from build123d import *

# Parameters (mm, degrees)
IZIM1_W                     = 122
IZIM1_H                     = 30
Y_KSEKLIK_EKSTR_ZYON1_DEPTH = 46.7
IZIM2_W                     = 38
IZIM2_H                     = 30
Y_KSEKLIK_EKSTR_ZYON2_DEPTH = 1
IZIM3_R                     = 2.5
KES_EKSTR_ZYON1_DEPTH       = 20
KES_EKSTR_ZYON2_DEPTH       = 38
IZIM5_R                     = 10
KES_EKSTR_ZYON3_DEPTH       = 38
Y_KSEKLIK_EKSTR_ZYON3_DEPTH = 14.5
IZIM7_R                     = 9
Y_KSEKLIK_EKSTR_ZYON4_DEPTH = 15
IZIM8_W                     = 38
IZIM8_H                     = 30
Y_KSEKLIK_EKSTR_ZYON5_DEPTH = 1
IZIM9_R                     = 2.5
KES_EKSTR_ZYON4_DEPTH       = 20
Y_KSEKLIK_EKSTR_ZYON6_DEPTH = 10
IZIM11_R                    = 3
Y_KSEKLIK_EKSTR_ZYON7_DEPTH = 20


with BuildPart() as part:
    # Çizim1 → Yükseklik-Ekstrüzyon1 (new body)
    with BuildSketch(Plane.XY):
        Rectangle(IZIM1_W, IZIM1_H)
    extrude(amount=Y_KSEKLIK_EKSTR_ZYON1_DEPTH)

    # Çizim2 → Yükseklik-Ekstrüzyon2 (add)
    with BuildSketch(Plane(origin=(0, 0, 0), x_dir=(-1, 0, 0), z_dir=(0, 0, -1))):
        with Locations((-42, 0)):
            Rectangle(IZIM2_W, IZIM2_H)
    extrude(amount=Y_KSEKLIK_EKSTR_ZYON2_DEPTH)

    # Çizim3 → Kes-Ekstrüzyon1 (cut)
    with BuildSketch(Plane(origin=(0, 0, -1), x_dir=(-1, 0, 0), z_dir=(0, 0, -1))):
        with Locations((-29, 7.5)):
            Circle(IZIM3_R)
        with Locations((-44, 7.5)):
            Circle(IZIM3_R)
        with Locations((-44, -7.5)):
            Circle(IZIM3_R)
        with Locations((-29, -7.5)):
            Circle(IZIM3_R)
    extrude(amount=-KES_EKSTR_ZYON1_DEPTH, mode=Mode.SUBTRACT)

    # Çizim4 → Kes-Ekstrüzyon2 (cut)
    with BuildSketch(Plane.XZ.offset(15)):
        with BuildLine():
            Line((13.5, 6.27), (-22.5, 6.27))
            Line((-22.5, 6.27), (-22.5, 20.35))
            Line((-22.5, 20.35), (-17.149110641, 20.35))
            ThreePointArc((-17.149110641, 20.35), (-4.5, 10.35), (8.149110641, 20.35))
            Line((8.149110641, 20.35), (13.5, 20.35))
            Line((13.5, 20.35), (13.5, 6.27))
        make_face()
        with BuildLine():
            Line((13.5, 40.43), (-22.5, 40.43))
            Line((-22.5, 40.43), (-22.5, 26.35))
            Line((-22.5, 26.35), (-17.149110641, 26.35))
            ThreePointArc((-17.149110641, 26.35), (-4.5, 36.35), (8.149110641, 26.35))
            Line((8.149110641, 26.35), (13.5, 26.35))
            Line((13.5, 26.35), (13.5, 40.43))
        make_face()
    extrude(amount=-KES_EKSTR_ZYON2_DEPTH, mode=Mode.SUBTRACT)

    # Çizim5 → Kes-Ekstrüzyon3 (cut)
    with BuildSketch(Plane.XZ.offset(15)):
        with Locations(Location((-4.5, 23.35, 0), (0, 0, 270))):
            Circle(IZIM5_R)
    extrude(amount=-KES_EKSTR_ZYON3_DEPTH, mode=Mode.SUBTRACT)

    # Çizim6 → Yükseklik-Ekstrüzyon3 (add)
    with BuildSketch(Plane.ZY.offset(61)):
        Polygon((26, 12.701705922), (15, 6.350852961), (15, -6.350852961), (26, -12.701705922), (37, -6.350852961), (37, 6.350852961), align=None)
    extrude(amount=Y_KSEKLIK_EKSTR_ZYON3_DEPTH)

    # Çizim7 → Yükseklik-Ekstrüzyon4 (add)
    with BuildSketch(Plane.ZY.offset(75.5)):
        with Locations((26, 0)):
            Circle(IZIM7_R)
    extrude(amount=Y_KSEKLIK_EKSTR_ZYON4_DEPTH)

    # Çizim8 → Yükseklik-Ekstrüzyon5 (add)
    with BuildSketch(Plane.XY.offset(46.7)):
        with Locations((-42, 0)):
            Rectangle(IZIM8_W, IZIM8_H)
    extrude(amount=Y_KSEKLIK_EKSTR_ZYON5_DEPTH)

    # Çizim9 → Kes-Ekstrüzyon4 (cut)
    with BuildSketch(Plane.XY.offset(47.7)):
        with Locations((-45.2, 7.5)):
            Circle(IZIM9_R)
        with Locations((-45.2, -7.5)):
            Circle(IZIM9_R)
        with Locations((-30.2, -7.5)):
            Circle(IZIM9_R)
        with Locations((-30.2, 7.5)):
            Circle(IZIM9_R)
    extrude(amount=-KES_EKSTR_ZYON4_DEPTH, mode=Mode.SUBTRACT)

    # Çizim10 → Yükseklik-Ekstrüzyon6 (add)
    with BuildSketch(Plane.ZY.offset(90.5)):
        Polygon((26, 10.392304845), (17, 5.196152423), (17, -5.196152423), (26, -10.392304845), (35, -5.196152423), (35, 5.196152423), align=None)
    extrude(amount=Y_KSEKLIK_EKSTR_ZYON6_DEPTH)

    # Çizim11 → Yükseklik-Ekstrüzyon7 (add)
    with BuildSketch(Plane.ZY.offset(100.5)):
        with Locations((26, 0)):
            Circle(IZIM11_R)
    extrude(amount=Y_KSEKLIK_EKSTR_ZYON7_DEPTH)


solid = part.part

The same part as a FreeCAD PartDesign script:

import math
import FreeCAD as App
import Part
import Sketcher
Q = App.Units.Quantity

doc = App.newDocument("Part")
body = doc.addObject("PartDesign::Body", "Body")

# Sketch on XY plane
sketch1 = body.newObject("Sketcher::SketchObject", "Sketch")
sketch1.AttachmentSupport = (doc.getObject("XY_Plane"), [""])
sketch1.MapMode = "FlatFace"
sketch1.addGeometry([
    Part.LineSegment(App.Vector(-61, 15, 0), App.Vector(-61, -15, 0)),
    Part.LineSegment(App.Vector(-61, -15, 0), App.Vector(61, -15, 0)),
    Part.LineSegment(App.Vector(61, -15, 0), App.Vector(61, 15, 0)),
    Part.LineSegment(App.Vector(61, 15, 0), App.Vector(-61, 15, 0)),
], False)
sketch1.addConstraint([
    Sketcher.Constraint("Coincident", 0, 2, 1, 1),
    Sketcher.Constraint("Coincident", 1, 2, 2, 1),
    Sketcher.Constraint("Coincident", 2, 2, 3, 1),
    Sketcher.Constraint("Coincident", 3, 2, 0, 1),
    Sketcher.Constraint("Vertical", 0),
    Sketcher.Constraint("Horizontal", 1),
    Sketcher.Constraint("Vertical", 2),
    Sketcher.Constraint("Horizontal", 3),
    Sketcher.Constraint("Symmetric", 0, 2, 2, 2, -1, 1),
    Sketcher.Constraint("DistanceX", 1, 1, 1, 2, Q("122 mm")),
    Sketcher.Constraint("DistanceY", 0, 2, 0, 1, Q("30 mm")),
])
pad1 = body.newObject("PartDesign::Pad", "Pad")
pad1.Profile = sketch1
pad1.Length = 46.7

# Sketch on XY plane
sketch2 = body.newObject("Sketcher::SketchObject", "Sketch001")
sketch2.AttachmentSupport = (doc.getObject("XY_Plane"), [""])
sketch2.MapMode = "FlatFace"
sketch2.addGeometry([
    Part.LineSegment(App.Vector(61, 15, 0), App.Vector(61, -15, 0)),
    Part.LineSegment(App.Vector(61, -15, 0), App.Vector(23, -15, 0)),
    Part.LineSegment(App.Vector(23, -15, 0), App.Vector(23, 15, 0)),
    Part.LineSegment(App.Vector(23, 15, 0), App.Vector(61, 15, 0)),
], False)
sketch2.addConstraint([
    Sketcher.Constraint("Coincident", 0, 2, 1, 1),
    Sketcher.Constraint("Coincident", 1, 2, 2, 1),
    Sketcher.Constraint("Coincident", 2, 2, 3, 1),
    Sketcher.Constraint("Coincident", 3, 2, 0, 1),
    Sketcher.Constraint("Vertical", 0),
    Sketcher.Constraint("Horizontal", 1),
    Sketcher.Constraint("Vertical", 2),
    Sketcher.Constraint("Horizontal", 3),
    Sketcher.Constraint("DistanceX", 1, 2, 1, 1, Q("38 mm")),
    Sketcher.Constraint("DistanceY", 0, 2, 0, 1, Q("30 mm")),
    Sketcher.Constraint("DistanceX", -1, 1, 0, 2, Q("61 mm")),
    Sketcher.Constraint("DistanceY", 0, 2, -1, 1, Q("15 mm")),
])
pad2 = body.newObject("PartDesign::Pad", "Pad001")
pad2.Profile = sketch2
pad2.Length = 1
pad2.Reversed = True

# Sketch on XY plane
sketch3 = body.newObject("Sketcher::SketchObject", "Sketch002")
sketch3.AttachmentSupport = (doc.getObject("XY_Plane"), [""])
sketch3.MapMode = "FlatFace"
sketch3.AttachmentOffset = App.Placement(App.Vector(0, 0, -1), App.Rotation())
sketch3.addGeometry([
    Part.Circle(App.Vector(29, 7.5, 0), App.Vector(0, 0, 1), 2.5),
    Part.Circle(App.Vector(44, 7.5, 0), App.Vector(0, 0, 1), 2.5),
    Part.Circle(App.Vector(44, -7.5, 0), App.Vector(0, 0, 1), 2.5),
    Part.Circle(App.Vector(29, -7.5, 0), App.Vector(0, 0, 1), 2.5),
], False)
sketch3.addConstraint([
    Sketcher.Constraint("Equal", 0, 1),
    Sketcher.Constraint("Equal", 1, 2),
    Sketcher.Constraint("Equal", 2, 3),
    Sketcher.Constraint("Symmetric", 1, 3, 2, 3, -1),
    Sketcher.Constraint("Symmetric", 0, 3, 3, 3, -1),
    Sketcher.Constraint("Horizontal", 0, 3, 1, 3),
    Sketcher.Constraint("Diameter", 0, Q("5 mm")),
    Sketcher.Constraint("DistanceX", -1, 1, 0, 3, Q("29 mm")),
    Sketcher.Constraint("DistanceX", -1, 1, 1, 3, Q("44 mm")),
    Sketcher.Constraint("DistanceY", 2, 3, 1, 3, Q("15 mm")),
])
pocket1 = body.newObject("PartDesign::Pocket", "Pocket")
pocket1.Profile = sketch3
pocket1.Length = 20
pocket1.Reversed = True

# Sketch on XZ plane
sketch4 = body.newObject("Sketcher::SketchObject", "Sketch003")
sketch4.AttachmentSupport = (doc.getObject("XZ_Plane"), [""])
sketch4.MapMode = "FlatFace"
sketch4.AttachmentOffset = App.Placement(App.Vector(0, 0, 15), App.Rotation())
sketch4.addGeometry([
    Part.LineSegment(App.Vector(-22.5, 6.27, 0), App.Vector(13.5, 6.27, 0)),  # 0
    Part.LineSegment(App.Vector(13.5, 6.27, 0), App.Vector(13.5, 20.35, 0)),  # 1
    Part.LineSegment(App.Vector(13.5, 20.35, 0), App.Vector(8.149111, 20.35, 0)),  # 2
    Part.ArcOfCircle(Part.Circle(App.Vector(-4.5, 23.35, 0), App.Vector(0, 0, 1), 13), math.radians(-166.657636), math.radians(-13.342364)),  # 3
    Part.LineSegment(App.Vector(-17.149111, 20.35, 0), App.Vector(-22.5, 20.35, 0)),  # 4
    Part.LineSegment(App.Vector(-22.5, 20.35, 0), App.Vector(-22.5, 6.27, 0)),  # 5
    Part.LineSegment(App.Vector(13.5, 40.43, 0), App.Vector(-22.5, 40.43, 0)),  # 6
    Part.LineSegment(App.Vector(-22.5, 40.43, 0), App.Vector(-22.5, 26.35, 0)),  # 7
    Part.LineSegment(App.Vector(-22.5, 26.35, 0), App.Vector(-17.149111, 26.35, 0)),  # 8
    Part.ArcOfCircle(Part.Circle(App.Vector(-4.5, 23.35, 0), App.Vector(0, 0, 1), 13), math.radians(13.342364), math.radians(166.657636)),  # 9
    Part.LineSegment(App.Vector(8.149111, 26.35, 0), App.Vector(13.5, 26.35, 0)),  # 10
    Part.LineSegment(App.Vector(13.5, 26.35, 0), App.Vector(13.5, 40.43, 0)),  # 11
], False)
sketch4.addConstraint([
    Sketcher.Constraint("Coincident", 0, 2, 1, 1),
    Sketcher.Constraint("Coincident", 1, 2, 2, 1),
    Sketcher.Constraint("Coincident", 2, 2, 3, 2),
    Sketcher.Constraint("Coincident", 3, 1, 4, 1),
    Sketcher.Constraint("Coincident", 4, 2, 5, 1),
    Sketcher.Constraint("Coincident", 5, 2, 0, 1),
    Sketcher.Constraint("Coincident", 6, 2, 7, 1),
    Sketcher.Constraint("Coincident", 7, 2, 8, 1),
    Sketcher.Constraint("Coincident", 8, 2, 9, 2),
    Sketcher.Constraint("Coincident", 9, 1, 10, 1),
    Sketcher.Constraint("Coincident", 10, 2, 11, 1),
    Sketcher.Constraint("Coincident", 11, 2, 6, 1),
    Sketcher.Constraint("Horizontal", 0),
    Sketcher.Constraint("Vertical", 1),
    Sketcher.Constraint("Horizontal", 2),
    Sketcher.Constraint("Horizontal", 4),
    Sketcher.Constraint("Vertical", 5),
    Sketcher.Constraint("Horizontal", 6),
    Sketcher.Constraint("Vertical", 7),
    Sketcher.Constraint("Horizontal", 8),
    Sketcher.Constraint("Horizontal", 10),
    Sketcher.Constraint("Vertical", 11),
    Sketcher.Constraint("Coincident", 9, 3, 3, 3),
    Sketcher.Constraint("Equal", 3, 9),
    Sketcher.Constraint("Horizontal", 2, 2, 3, 1),
    Sketcher.Constraint("Horizontal", 8, 2, 9, 1),
    Sketcher.Constraint("Vertical", 5, 2, 6, 2),
    Sketcher.Constraint("Vertical", 3, 1, 8, 2),
    Sketcher.Constraint("Vertical", 1, 2, 10, 2),
    Sketcher.Constraint("Equal", 2, 4),
    Sketcher.Constraint("Equal", 5, 7),
    Sketcher.Constraint("Radius", 3, Q("13 mm")),
    Sketcher.Constraint("DistanceX", 0, 1, 0, 2, Q("36 mm")),
    Sketcher.Constraint("DistanceY", 1, 2, 3, 3, Q("3 mm")),
    Sketcher.Constraint("DistanceY", 1, 1, 1, 2, Q("14.08 mm")),
    Sketcher.Constraint("DistanceX", 3, 3, -1, 1, Q("4.5 mm")),
    Sketcher.Constraint("DistanceY", -1, 1, 3, 3, Q("23.35 mm")),
])
pocket2 = body.newObject("PartDesign::Pocket", "Pocket001")
pocket2.Profile = sketch4
pocket2.Length = 38

# Sketch on XZ plane
sketch5 = body.newObject("Sketcher::SketchObject", "Sketch004")
sketch5.AttachmentSupport = (doc.getObject("XZ_Plane"), [""])
sketch5.MapMode = "FlatFace"
sketch5.AttachmentOffset = App.Placement(App.Vector(0, 0, 15), App.Rotation())
sketch5.addGeometry(Part.Circle(App.Vector(-4.5, 23.35, 0), App.Vector(0, 0, 1), 10), False)
sketch5.addConstraint([
    Sketcher.Constraint("Diameter", 0, Q("20 mm")),
    Sketcher.Constraint("DistanceX", 0, 3, -1, 1, Q("4.5 mm")),
    Sketcher.Constraint("DistanceY", -1, 1, 0, 3, Q("23.35 mm")),
])
pocket3 = body.newObject("PartDesign::Pocket", "Pocket002")
pocket3.Profile = sketch5
pocket3.Length = 38

# Sketch on YZ plane
sketch6 = body.newObject("Sketcher::SketchObject", "Sketch005")
sketch6.AttachmentSupport = (doc.getObject("YZ_Plane"), [""])
sketch6.MapMode = "FlatFace"
sketch6.AttachmentOffset = App.Placement(App.Vector(0, 0, -61), App.Rotation())
sketch6.addGeometry([
    Part.LineSegment(App.Vector(12.701706, 26, 0), App.Vector(6.350853, 15, 0)),  # 0
    Part.LineSegment(App.Vector(6.350853, 15, 0), App.Vector(-6.350853, 15, 0)),  # 1
    Part.LineSegment(App.Vector(-6.350853, 15, 0), App.Vector(-12.701706, 26, 0)),  # 2
    Part.LineSegment(App.Vector(-12.701706, 26, 0), App.Vector(-6.350853, 37, 0)),  # 3
    Part.LineSegment(App.Vector(-6.350853, 37, 0), App.Vector(6.350853, 37, 0)),  # 4
    Part.LineSegment(App.Vector(6.350853, 37, 0), App.Vector(12.701706, 26, 0)),  # 5
], False)
sketch6.addConstraint([
    Sketcher.Constraint("Coincident", 0, 2, 1, 1),
    Sketcher.Constraint("Coincident", 1, 2, 2, 1),
    Sketcher.Constraint("Coincident", 2, 2, 3, 1),
    Sketcher.Constraint("Coincident", 3, 2, 4, 1),
    Sketcher.Constraint("Coincident", 4, 2, 5, 1),
    Sketcher.Constraint("Coincident", 5, 2, 0, 1),
    Sketcher.Constraint("Horizontal", 1),
    Sketcher.Constraint("Horizontal", 4),
    Sketcher.Constraint("Symmetric", 2, 2, 5, 2, -2),
    Sketcher.Constraint("Parallel", 0, 3),
    Sketcher.Constraint("Parallel", 2, 5),
    Sketcher.Constraint("Vertical", 1, 2, 3, 2),
    Sketcher.Constraint("Vertical", 0, 2, 4, 2),
    Sketcher.Constraint("Angle", 0, Q("-120 deg")),
    Sketcher.Constraint("DistanceY", -1, 1, 0, 2, Q("15 mm")),
    Sketcher.Constraint("DistanceY", -1, 1, 2, 2, Q("26 mm")),
    Sketcher.Constraint("DistanceX", 1, 2, 1, 1, Q("12.701706 mm")),
])
pad3 = body.newObject("PartDesign::Pad", "Pad002")
pad3.Profile = sketch6
pad3.Length = 14.5
pad3.Reversed = True

# Sketch on YZ plane
sketch7 = body.newObject("Sketcher::SketchObject", "Sketch006")
sketch7.AttachmentSupport = (doc.getObject("YZ_Plane"), [""])
sketch7.MapMode = "FlatFace"
sketch7.AttachmentOffset = App.Placement(App.Vector(0, 0, -75.5), App.Rotation())
sketch7.addGeometry(Part.Circle(App.Vector(0, 26, 0), App.Vector(0, 0, 1), 9), False)
sketch7.addConstraint([
    Sketcher.Constraint("PointOnObject", 0, 3, -2),
    Sketcher.Constraint("Diameter", 0, Q("18 mm")),
    Sketcher.Constraint("DistanceY", -1, 1, 0, 3, Q("26 mm")),
])
pad4 = body.newObject("PartDesign::Pad", "Pad003")
pad4.Profile = sketch7
pad4.Length = 15
pad4.Reversed = True

# Sketch on XY plane
sketch8 = body.newObject("Sketcher::SketchObject", "Sketch007")
sketch8.AttachmentSupport = (doc.getObject("XY_Plane"), [""])
sketch8.MapMode = "FlatFace"
sketch8.AttachmentOffset = App.Placement(App.Vector(0, 0, 46.7), App.Rotation())
sketch8.addGeometry([
    Part.LineSegment(App.Vector(-61, 15, 0), App.Vector(-61, -15, 0)),
    Part.LineSegment(App.Vector(-61, -15, 0), App.Vector(-23, -15, 0)),
    Part.LineSegment(App.Vector(-23, -15, 0), App.Vector(-23, 15, 0)),
    Part.LineSegment(App.Vector(-23, 15, 0), App.Vector(-61, 15, 0)),
], False)
sketch8.addConstraint([
    Sketcher.Constraint("Coincident", 0, 2, 1, 1),
    Sketcher.Constraint("Coincident", 1, 2, 2, 1),
    Sketcher.Constraint("Coincident", 2, 2, 3, 1),
    Sketcher.Constraint("Coincident", 3, 2, 0, 1),
    Sketcher.Constraint("Vertical", 0),
    Sketcher.Constraint("Horizontal", 1),
    Sketcher.Constraint("Vertical", 2),
    Sketcher.Constraint("Horizontal", 3),
    Sketcher.Constraint("DistanceX", 1, 1, 1, 2, Q("38 mm")),
    Sketcher.Constraint("DistanceY", 0, 2, 0, 1, Q("30 mm")),
    Sketcher.Constraint("DistanceX", 0, 2, -1, 1, Q("61 mm")),
    Sketcher.Constraint("DistanceY", 0, 2, -1, 1, Q("15 mm")),
])
pad5 = body.newObject("PartDesign::Pad", "Pad004")
pad5.Profile = sketch8
pad5.Length = 1

# Sketch on XY plane
sketch9 = body.newObject("Sketcher::SketchObject", "Sketch008")
sketch9.AttachmentSupport = (doc.getObject("XY_Plane"), [""])
sketch9.MapMode = "FlatFace"
sketch9.AttachmentOffset = App.Placement(App.Vector(0, 0, 47.7), App.Rotation())
sketch9.addGeometry([
    Part.Circle(App.Vector(-45.2, 7.5, 0), App.Vector(0, 0, 1), 2.5),
    Part.Circle(App.Vector(-45.2, -7.5, 0), App.Vector(0, 0, 1), 2.5),
    Part.Circle(App.Vector(-30.2, -7.5, 0), App.Vector(0, 0, 1), 2.5),
    Part.Circle(App.Vector(-30.2, 7.5, 0), App.Vector(0, 0, 1), 2.5),
], False)
sketch9.addConstraint([
    Sketcher.Constraint("Equal", 0, 1),
    Sketcher.Constraint("Equal", 1, 2),
    Sketcher.Constraint("Equal", 2, 3),
    Sketcher.Constraint("Symmetric", 0, 3, 1, 3, -1),
    Sketcher.Constraint("Symmetric", 2, 3, 3, 3, -1),
    Sketcher.Constraint("Horizontal", 1, 3, 2, 3),
    Sketcher.Constraint("Diameter", 0, Q("5 mm")),
    Sketcher.Constraint("DistanceY", 1, 3, 0, 3, Q("15 mm")),
    Sketcher.Constraint("DistanceX", 1, 3, 2, 3, Q("15 mm")),
    Sketcher.Constraint("DistanceX", 0, 3, -1, 1, Q("45.2 mm")),
])
pocket4 = body.newObject("PartDesign::Pocket", "Pocket003")
pocket4.Profile = sketch9
pocket4.Length = 20

# Sketch on YZ plane
sketch10 = body.newObject("Sketcher::SketchObject", "Sketch009")
sketch10.AttachmentSupport = (doc.getObject("YZ_Plane"), [""])
sketch10.MapMode = "FlatFace"
sketch10.AttachmentOffset = App.Placement(App.Vector(0, 0, -90.5), App.Rotation())
sketch10.addGeometry([
    Part.LineSegment(App.Vector(10.392305, 26, 0), App.Vector(5.196152, 17, 0)),  # 0
    Part.LineSegment(App.Vector(5.196152, 17, 0), App.Vector(-5.196152, 17, 0)),  # 1
    Part.LineSegment(App.Vector(-5.196152, 17, 0), App.Vector(-10.392305, 26, 0)),  # 2
    Part.LineSegment(App.Vector(-10.392305, 26, 0), App.Vector(-5.196152, 35, 0)),  # 3
    Part.LineSegment(App.Vector(-5.196152, 35, 0), App.Vector(5.196152, 35, 0)),  # 4
    Part.LineSegment(App.Vector(5.196152, 35, 0), App.Vector(10.392305, 26, 0)),  # 5
], False)
sketch10.addConstraint([
    Sketcher.Constraint("Coincident", 0, 2, 1, 1),
    Sketcher.Constraint("Coincident", 1, 2, 2, 1),
    Sketcher.Constraint("Coincident", 2, 2, 3, 1),
    Sketcher.Constraint("Coincident", 3, 2, 4, 1),
    Sketcher.Constraint("Coincident", 4, 2, 5, 1),
    Sketcher.Constraint("Coincident", 5, 2, 0, 1),
    Sketcher.Constraint("Horizontal", 1),
    Sketcher.Constraint("Horizontal", 4),
    Sketcher.Constraint("Symmetric", 2, 2, 5, 2, -2),
    Sketcher.Constraint("Parallel", 0, 3),
    Sketcher.Constraint("Parallel", 2, 5),
    Sketcher.Constraint("Vertical", 1, 2, 3, 2),
    Sketcher.Constraint("Vertical", 0, 2, 4, 2),
    Sketcher.Constraint("Angle", 0, Q("-120 deg")),
    Sketcher.Constraint("DistanceY", -1, 1, 0, 2, Q("17 mm")),
    Sketcher.Constraint("DistanceY", -1, 1, 2, 2, Q("26 mm")),
    Sketcher.Constraint("DistanceX", 1, 2, 1, 1, Q("10.392305 mm")),
])
pad6 = body.newObject("PartDesign::Pad", "Pad005")
pad6.Profile = sketch10
pad6.Length = 10
pad6.Reversed = True

# Sketch on YZ plane
sketch11 = body.newObject("Sketcher::SketchObject", "Sketch010")
sketch11.AttachmentSupport = (doc.getObject("YZ_Plane"), [""])
sketch11.MapMode = "FlatFace"
sketch11.AttachmentOffset = App.Placement(App.Vector(0, 0, -100.5), App.Rotation())
sketch11.addGeometry(Part.Circle(App.Vector(0, 26, 0), App.Vector(0, 0, 1), 3), False)
sketch11.addConstraint([
    Sketcher.Constraint("PointOnObject", 0, 3, -2),
    Sketcher.Constraint("Diameter", 0, Q("6 mm")),
    Sketcher.Constraint("DistanceY", -1, 1, 0, 3, Q("26 mm")),
])
pad7 = body.newObject("PartDesign::Pad", "Pad006")
pad7.Profile = sketch11
pad7.Length = 20
pad7.Reversed = True

doc.recompute()
